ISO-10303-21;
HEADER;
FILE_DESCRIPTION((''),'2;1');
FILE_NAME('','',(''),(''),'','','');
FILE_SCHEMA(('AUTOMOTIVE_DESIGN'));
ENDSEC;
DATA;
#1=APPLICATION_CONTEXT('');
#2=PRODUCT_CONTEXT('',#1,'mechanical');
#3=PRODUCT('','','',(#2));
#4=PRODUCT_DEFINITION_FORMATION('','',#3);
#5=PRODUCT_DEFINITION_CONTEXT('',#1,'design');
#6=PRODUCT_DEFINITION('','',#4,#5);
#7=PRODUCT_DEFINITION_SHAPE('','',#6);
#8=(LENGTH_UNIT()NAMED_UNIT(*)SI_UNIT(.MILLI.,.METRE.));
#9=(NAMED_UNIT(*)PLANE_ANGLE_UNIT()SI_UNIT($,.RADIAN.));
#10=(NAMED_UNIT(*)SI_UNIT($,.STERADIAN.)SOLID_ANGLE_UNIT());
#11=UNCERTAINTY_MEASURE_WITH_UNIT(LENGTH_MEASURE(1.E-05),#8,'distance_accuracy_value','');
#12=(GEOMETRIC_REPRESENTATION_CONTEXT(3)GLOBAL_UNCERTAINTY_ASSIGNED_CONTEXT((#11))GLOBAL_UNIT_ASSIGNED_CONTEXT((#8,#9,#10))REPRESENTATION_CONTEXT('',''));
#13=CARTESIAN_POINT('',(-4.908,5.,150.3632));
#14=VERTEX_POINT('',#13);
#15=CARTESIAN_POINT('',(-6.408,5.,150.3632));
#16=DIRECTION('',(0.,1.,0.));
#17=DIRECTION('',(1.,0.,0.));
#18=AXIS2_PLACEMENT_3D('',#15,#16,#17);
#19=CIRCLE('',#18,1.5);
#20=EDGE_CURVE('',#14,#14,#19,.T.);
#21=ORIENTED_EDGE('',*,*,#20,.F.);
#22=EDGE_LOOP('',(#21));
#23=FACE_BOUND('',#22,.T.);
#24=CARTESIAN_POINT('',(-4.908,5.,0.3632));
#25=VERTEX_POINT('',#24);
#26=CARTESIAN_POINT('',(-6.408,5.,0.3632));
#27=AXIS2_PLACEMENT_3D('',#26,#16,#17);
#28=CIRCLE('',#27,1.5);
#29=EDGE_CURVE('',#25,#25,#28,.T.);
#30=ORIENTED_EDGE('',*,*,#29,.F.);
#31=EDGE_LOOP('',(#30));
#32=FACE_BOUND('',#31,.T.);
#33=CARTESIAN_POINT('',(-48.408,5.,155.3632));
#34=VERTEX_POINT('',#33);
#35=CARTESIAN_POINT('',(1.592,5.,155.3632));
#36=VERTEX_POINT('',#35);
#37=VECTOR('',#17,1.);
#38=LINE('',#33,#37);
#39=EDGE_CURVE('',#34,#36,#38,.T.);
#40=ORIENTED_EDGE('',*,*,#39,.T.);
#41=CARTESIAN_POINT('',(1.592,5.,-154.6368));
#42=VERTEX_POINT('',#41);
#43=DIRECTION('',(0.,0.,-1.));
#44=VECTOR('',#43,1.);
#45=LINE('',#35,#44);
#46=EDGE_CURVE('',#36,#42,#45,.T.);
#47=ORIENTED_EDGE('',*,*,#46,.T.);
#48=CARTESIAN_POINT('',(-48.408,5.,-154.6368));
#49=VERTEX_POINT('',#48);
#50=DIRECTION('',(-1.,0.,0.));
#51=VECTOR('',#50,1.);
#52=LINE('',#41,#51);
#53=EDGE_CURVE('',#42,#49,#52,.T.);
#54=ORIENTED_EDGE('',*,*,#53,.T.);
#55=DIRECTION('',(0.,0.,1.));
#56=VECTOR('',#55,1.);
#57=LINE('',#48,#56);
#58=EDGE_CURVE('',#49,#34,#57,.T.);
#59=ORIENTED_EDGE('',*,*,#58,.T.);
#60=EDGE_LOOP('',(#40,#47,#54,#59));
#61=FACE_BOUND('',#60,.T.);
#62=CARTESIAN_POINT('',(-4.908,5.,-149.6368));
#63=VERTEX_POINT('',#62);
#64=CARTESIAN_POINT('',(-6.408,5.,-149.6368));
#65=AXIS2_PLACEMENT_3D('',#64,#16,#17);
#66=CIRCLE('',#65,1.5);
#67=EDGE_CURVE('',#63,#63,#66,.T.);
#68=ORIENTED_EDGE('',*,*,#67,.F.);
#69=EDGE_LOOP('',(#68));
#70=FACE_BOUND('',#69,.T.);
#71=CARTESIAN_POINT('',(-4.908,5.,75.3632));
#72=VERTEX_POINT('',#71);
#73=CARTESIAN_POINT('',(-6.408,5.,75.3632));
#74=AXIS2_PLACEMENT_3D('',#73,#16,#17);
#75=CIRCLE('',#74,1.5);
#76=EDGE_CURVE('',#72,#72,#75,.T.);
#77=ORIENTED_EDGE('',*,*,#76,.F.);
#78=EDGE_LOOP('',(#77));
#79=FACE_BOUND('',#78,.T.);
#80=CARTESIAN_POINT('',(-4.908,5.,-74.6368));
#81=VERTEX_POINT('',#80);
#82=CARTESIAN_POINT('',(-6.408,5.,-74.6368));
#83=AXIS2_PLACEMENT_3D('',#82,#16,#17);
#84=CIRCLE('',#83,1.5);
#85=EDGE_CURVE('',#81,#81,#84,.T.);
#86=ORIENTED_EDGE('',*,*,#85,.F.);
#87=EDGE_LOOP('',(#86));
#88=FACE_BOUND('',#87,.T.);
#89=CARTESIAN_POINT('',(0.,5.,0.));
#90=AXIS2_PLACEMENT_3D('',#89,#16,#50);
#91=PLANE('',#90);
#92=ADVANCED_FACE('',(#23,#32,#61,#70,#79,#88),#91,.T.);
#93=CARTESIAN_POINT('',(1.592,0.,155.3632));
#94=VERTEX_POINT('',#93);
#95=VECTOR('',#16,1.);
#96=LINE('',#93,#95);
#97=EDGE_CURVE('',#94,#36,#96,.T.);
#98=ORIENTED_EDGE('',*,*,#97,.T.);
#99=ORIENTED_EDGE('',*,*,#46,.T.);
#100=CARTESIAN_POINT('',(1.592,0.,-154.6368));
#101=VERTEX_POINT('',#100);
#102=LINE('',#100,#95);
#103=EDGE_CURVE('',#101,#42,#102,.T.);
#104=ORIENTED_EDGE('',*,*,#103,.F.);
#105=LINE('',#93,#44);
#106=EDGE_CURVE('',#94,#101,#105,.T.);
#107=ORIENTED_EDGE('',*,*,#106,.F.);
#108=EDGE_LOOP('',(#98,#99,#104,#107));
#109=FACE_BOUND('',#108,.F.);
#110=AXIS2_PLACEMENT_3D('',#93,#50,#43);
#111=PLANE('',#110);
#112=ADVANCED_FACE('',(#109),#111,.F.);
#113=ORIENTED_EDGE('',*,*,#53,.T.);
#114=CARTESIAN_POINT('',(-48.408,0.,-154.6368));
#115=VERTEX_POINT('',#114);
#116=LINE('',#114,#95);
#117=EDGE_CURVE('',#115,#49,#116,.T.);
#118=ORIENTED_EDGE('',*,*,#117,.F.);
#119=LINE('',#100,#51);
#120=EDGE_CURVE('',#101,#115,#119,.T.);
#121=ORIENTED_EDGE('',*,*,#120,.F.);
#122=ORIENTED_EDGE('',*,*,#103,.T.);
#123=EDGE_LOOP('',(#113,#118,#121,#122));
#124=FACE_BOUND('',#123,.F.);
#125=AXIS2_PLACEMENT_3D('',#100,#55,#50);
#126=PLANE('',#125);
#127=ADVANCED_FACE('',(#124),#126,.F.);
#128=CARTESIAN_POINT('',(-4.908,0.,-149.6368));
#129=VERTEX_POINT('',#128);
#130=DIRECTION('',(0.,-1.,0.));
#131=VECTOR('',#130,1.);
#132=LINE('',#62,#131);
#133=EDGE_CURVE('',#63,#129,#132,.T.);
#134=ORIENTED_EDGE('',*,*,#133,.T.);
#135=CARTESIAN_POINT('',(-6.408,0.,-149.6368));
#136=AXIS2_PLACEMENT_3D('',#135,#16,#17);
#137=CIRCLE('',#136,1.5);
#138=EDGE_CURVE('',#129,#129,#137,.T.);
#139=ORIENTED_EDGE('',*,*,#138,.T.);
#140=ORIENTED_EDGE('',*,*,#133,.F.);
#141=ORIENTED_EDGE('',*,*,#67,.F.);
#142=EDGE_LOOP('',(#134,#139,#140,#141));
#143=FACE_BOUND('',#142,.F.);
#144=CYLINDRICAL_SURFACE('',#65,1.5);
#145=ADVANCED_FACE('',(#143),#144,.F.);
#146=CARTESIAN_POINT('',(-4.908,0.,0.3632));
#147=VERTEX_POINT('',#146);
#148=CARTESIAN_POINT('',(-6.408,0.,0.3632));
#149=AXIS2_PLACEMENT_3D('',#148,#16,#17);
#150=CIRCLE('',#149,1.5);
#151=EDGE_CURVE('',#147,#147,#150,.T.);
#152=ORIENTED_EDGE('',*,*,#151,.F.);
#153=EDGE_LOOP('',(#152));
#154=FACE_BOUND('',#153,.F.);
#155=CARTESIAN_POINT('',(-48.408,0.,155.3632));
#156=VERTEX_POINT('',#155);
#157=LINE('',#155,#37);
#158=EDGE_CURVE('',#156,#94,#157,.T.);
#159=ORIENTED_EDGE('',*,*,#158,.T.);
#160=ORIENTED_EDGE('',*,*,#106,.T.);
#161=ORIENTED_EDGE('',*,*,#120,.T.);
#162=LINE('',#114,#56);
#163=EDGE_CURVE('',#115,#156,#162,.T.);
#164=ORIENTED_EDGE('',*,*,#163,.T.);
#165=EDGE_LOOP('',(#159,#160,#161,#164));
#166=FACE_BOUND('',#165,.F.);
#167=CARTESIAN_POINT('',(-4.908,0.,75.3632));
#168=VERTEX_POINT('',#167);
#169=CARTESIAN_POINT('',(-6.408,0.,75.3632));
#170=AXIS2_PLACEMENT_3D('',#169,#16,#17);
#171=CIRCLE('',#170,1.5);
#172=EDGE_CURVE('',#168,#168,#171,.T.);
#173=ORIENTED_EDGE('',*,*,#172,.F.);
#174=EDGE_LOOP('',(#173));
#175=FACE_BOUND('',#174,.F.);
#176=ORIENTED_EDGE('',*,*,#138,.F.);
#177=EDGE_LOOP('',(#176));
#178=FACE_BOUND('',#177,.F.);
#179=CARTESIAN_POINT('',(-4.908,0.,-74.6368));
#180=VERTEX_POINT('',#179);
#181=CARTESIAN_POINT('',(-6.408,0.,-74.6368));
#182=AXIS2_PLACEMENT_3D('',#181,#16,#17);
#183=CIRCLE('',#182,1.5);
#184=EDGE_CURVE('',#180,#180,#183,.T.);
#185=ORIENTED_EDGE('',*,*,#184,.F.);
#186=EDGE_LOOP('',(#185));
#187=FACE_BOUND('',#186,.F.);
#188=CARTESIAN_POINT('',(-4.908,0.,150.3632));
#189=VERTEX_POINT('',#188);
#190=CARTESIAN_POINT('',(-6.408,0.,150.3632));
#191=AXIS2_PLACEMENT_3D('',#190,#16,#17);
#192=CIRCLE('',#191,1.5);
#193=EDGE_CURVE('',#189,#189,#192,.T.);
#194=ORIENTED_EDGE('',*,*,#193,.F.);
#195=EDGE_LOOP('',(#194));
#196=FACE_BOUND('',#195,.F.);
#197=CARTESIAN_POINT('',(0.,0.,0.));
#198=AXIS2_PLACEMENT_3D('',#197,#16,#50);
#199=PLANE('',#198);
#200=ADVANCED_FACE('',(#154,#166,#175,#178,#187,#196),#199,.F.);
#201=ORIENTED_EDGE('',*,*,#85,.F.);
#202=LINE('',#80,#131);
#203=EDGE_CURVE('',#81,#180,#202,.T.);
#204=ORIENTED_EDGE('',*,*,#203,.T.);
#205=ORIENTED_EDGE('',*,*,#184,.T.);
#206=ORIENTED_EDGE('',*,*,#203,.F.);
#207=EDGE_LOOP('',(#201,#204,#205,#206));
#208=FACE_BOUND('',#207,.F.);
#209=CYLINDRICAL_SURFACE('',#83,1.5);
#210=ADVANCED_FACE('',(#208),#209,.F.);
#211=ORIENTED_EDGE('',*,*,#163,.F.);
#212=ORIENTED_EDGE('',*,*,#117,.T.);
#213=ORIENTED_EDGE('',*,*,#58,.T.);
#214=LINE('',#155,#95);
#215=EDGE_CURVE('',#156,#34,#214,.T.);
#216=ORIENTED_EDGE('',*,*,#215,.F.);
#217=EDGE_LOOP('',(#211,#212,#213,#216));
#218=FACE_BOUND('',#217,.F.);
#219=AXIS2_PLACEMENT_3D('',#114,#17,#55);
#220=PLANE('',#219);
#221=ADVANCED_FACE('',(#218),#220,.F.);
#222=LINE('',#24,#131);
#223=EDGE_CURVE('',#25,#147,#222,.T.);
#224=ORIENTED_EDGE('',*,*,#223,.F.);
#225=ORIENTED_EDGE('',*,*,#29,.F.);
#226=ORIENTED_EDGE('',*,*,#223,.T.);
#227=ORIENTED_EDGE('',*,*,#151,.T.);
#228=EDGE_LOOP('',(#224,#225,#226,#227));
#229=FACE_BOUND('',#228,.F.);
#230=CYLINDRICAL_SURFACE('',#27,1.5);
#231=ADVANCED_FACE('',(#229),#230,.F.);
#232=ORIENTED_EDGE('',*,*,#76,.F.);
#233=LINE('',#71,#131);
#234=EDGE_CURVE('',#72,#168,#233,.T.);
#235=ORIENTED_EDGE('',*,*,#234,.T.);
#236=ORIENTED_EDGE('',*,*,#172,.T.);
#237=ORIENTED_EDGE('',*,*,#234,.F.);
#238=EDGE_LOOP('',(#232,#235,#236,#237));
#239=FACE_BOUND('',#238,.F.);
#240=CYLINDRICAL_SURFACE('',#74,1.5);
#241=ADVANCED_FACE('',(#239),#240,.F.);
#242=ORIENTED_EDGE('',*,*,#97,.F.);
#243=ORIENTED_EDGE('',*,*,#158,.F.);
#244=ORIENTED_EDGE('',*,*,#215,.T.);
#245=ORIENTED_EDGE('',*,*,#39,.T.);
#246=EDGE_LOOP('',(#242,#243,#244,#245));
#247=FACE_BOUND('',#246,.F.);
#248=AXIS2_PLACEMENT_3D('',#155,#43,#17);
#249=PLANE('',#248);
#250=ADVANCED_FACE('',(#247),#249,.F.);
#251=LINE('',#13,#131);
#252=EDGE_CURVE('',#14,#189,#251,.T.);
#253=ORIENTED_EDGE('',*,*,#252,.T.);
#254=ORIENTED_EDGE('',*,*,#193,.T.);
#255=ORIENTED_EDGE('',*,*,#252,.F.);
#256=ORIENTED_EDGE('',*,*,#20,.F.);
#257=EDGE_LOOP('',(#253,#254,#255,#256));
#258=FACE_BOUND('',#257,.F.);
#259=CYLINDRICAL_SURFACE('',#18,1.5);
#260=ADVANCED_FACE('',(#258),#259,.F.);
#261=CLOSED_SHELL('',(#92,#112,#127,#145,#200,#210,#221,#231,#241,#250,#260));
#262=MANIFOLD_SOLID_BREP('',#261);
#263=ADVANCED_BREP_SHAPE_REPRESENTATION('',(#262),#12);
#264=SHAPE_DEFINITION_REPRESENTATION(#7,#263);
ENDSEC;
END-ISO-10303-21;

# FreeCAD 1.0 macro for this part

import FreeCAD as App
import Part
import Sketcher
from FreeCAD import Vector


def add_polygon(sketch, points):
    """Adds a closed chain of lines whose ends are joined by coincident constraints."""
    first, n = sketch.GeometryCount, len(points)
    for a, b in zip(points, points[1:] + points[:1]):
        sketch.addGeometry(Part.LineSegment(App.Vector(*a, 0), App.Vector(*b, 0)), False)
    for i in range(n):
        sketch.addConstraint(Sketcher.Constraint("Coincident", first + i, 2, first + (i + 1) % n, 1))

doc = App.newDocument("Part")
body = doc.addObject("PartDesign::Body", "Body")

sketch1 = body.newObject("Sketcher::SketchObject", "Sketch")
sketch1.AttachmentSupport = (doc.getObject("XZ_Plane"), [""])
sketch1.MapMode = "FlatFace"
add_polygon(sketch1, [(-48, -155), (-48, 155), (2, 155), (2, -155)])
sketch1.addConstraint(Sketcher.Constraint("Vertical", 0))
sketch1.addConstraint(Sketcher.Constraint("Horizontal", 1))
sketch1.addConstraint(Sketcher.Constraint("Vertical", 2))
sketch1.addConstraint(Sketcher.Constraint("Horizontal", 3))
sketch1.addConstraint(Sketcher.Constraint("DistanceX", 1, 1, 1, 2, 50.0))
sketch1.addConstraint(Sketcher.Constraint("DistanceY", 0, 1, 0, 2, 310.0))
sketch1.addConstraint(Sketcher.Constraint("DistanceX", 0, 2, -1, 1, 48.408))
sketch1.addConstraint(Sketcher.Constraint("DistanceY", -1, 1, 0, 2, 155.3632))
pad1 = body.newObject("PartDesign::Pad", "Pad")
pad1.Profile = sketch1
pad1.Length = 5
pad1.Reversed = True

sketch2 = body.newObject("Sketcher::SketchObject", "Sketch001")
sketch2.AttachmentSupport = (doc.getObject("XZ_Plane"), [""])
sketch2.MapMode = "FlatFace"
sketch2.AttachmentOffset = App.Placement(Vector(0, 0, -5), App.Rotation())
sketch2.addGeometry(Part.Circle(Vector(-6.4, 75.4, 0), Vector(0, 0, 1), 1.5), False)
sketch2.addGeometry(Part.Circle(Vector(-6.4, 0.4, 0), Vector(0, 0, 1), 1.5), False)
sketch2.addGeometry(Part.Circle(Vector(-6.4, -74.6, 0), Vector(0, 0, 1), 1.5), False)
sketch2.addGeometry(Part.Circle(Vector(-6.4, 150.4, 0), Vector(0, 0, 1), 1.5), False)
sketch2.addGeometry(Part.Circle(Vector(-6.4, -149.6, 0), Vector(0, 0, 1), 1.5), False)
sketch2.addConstraint(Sketcher.Constraint("Equal", 0, 1))
sketch2.addConstraint(Sketcher.Constraint("Equal", 1, 2))
sketch2.addConstraint(Sketcher.Constraint("Equal", 2, 3))
sketch2.addConstraint(Sketcher.Constraint("Equal", 3, 4))
sketch2.addConstraint(Sketcher.Constraint("Vertical", 0, 3, 1, 3))
sketch2.addConstraint(Sketcher.Constraint("Vertical", 1, 3, 2, 3))
sketch2.addConstraint(Sketcher.Constraint("Vertical", 2, 3, 3, 3))
sketch2.addConstraint(Sketcher.Constraint("Vertical", 3, 3, 4, 3))
sketch2.addConstraint(Sketcher.Constraint("Diameter", 0, 3.0))
sketch2.addConstraint(Sketcher.Constraint("DistanceY", 1, 3, 0, 3, 75.0))
sketch2.addConstraint(Sketcher.Constraint("DistanceY", 2, 3, 1, 3, 75.0))
sketch2.addConstraint(Sketcher.Constraint("DistanceY", 0, 3, 3, 3, 75.0))
sketch2.addConstraint(Sketcher.Constraint("DistanceY", 4, 3, 2, 3, 75.0))
sketch2.addConstraint(Sketcher.Constraint("DistanceX", 0, 3, -1, 1, 6.408))
sketch2.addConstraint(Sketcher.Constraint("DistanceY", -1, 1, 0, 3, 75.3632))
pocket1 = body.newObject("PartDesign::Pocket", "Pocket")
pocket1.Profile = sketch2
pocket1.Type = "ThroughAll"
pocket1.Reversed = True

doc.recompute()
